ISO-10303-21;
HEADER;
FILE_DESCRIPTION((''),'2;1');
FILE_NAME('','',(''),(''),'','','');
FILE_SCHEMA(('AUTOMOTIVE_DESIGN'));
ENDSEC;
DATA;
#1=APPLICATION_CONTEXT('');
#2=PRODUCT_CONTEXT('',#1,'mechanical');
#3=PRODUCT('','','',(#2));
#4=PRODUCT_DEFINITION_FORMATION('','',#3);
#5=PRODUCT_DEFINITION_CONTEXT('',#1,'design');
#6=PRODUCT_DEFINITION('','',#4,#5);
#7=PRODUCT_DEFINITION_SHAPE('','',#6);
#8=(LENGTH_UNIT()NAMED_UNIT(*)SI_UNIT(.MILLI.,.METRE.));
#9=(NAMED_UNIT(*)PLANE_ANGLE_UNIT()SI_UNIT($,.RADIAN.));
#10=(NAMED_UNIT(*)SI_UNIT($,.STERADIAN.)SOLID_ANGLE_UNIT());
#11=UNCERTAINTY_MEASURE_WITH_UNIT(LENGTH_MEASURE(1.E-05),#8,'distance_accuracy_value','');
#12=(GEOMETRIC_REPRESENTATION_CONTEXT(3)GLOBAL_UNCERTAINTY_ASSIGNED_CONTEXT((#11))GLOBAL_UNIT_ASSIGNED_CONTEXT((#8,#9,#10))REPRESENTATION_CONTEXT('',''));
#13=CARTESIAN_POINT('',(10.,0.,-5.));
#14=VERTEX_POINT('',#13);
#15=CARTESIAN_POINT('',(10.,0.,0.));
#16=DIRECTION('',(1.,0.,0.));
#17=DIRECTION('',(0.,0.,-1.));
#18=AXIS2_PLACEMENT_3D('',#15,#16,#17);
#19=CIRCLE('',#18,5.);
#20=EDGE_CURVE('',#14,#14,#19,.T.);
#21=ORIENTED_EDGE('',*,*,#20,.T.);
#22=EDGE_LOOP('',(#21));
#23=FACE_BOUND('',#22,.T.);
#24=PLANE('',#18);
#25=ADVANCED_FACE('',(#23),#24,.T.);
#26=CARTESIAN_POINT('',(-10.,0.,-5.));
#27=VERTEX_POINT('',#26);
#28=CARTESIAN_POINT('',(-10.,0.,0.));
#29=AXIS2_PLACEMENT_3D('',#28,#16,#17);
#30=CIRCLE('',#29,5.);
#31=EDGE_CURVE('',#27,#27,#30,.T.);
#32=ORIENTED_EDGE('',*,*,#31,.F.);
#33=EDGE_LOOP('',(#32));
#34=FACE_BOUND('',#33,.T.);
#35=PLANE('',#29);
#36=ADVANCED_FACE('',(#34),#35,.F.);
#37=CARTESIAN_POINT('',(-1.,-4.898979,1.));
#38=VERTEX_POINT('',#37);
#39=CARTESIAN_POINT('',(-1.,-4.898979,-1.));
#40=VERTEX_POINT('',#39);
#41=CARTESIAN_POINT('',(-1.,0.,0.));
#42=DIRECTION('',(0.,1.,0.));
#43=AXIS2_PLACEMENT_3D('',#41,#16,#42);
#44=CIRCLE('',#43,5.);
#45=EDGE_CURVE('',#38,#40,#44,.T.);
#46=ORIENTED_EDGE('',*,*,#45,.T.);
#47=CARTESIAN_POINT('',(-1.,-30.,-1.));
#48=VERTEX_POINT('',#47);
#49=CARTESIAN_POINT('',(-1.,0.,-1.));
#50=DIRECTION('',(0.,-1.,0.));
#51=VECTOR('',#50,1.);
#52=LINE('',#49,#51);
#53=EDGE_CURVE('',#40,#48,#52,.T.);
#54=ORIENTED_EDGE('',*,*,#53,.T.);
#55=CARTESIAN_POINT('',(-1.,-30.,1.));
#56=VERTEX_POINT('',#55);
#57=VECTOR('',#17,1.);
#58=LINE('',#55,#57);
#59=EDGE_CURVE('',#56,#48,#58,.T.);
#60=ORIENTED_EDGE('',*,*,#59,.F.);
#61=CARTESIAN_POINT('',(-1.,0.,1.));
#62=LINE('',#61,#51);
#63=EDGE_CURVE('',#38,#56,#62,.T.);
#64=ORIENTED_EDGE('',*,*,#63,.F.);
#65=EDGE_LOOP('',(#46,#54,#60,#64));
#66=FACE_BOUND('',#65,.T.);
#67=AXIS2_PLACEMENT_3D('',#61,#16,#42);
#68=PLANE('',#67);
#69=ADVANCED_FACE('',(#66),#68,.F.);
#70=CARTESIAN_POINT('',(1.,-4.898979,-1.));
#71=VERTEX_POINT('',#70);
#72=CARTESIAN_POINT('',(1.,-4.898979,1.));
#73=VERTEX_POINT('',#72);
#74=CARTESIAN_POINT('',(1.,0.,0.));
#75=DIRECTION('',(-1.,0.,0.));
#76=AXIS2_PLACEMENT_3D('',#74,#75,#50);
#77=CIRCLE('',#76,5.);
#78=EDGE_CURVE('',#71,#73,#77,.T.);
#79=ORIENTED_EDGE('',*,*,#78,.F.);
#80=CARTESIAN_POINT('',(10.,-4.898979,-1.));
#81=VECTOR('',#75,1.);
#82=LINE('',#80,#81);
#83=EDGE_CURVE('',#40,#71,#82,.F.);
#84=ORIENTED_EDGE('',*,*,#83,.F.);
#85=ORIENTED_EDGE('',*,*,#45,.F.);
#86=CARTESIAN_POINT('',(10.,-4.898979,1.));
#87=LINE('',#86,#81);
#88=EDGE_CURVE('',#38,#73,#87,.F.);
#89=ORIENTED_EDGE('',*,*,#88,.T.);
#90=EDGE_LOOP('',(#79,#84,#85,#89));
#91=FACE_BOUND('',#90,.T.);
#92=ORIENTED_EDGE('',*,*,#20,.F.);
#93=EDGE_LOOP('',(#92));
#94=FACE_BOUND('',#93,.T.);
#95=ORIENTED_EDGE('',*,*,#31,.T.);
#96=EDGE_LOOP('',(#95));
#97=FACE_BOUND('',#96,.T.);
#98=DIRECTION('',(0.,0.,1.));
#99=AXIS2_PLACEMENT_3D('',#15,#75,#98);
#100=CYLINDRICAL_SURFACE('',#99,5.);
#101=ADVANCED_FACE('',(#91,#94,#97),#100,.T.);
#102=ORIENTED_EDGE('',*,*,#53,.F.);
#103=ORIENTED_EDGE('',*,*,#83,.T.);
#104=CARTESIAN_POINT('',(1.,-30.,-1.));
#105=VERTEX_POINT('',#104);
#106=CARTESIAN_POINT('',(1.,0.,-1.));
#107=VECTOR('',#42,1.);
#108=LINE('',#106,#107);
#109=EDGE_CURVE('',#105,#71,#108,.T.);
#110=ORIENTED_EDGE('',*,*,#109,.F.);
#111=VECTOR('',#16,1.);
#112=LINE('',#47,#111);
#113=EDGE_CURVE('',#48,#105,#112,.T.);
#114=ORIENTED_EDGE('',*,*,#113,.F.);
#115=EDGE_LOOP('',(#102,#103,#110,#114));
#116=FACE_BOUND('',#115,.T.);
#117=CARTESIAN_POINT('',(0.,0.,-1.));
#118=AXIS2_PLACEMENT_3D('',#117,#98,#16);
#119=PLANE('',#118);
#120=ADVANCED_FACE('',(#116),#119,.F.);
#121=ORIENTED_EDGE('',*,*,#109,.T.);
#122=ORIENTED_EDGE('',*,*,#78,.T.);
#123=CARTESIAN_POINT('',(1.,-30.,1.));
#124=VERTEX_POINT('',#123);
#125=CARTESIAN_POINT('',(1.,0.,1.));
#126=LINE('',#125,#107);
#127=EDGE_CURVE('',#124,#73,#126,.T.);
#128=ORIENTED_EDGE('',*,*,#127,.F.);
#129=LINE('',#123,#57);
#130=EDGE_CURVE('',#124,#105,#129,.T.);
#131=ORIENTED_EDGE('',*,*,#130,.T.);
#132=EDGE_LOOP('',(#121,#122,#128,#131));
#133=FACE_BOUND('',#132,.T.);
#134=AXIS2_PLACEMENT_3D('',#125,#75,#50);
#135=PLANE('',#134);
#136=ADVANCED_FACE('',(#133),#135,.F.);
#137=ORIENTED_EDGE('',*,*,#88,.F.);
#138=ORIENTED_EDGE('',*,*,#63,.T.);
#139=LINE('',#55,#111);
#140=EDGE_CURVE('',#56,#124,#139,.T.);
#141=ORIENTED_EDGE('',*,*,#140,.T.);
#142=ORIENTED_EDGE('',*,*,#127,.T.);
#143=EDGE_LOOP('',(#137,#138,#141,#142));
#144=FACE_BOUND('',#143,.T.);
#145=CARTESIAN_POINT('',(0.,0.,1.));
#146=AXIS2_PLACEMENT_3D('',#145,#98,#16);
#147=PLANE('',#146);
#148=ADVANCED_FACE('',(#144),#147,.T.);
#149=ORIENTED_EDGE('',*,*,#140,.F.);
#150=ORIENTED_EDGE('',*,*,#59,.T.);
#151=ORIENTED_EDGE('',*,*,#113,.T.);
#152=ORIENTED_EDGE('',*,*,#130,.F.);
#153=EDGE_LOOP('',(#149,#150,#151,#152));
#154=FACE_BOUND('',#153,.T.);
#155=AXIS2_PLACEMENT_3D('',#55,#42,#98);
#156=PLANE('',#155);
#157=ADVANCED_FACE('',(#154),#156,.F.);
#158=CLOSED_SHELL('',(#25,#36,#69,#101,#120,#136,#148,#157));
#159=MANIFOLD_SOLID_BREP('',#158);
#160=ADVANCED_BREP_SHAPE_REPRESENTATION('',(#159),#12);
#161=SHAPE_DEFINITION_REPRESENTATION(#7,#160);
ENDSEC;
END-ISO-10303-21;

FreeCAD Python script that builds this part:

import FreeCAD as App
import Part
import Sketcher
from FreeCAD import Vector
Q = App.Units.Quantity


def add_polygon(sketch, points):
    """Adds a closed chain of lines whose ends are joined by coincident constraints."""
    first, n = sketch.GeometryCount, len(points)
    for a, b in zip(points, points[1:] + points[:1]):
        sketch.addGeometry(Part.LineSegment(App.Vector(*a, 0), App.Vector(*b, 0)), False)
    for i in range(n):
        sketch.addConstraint(Sketcher.Constraint("Coincident", first + i, 2, first + (i + 1) % n, 1))

doc = App.newDocument("Part")
body = doc.addObject("PartDesign::Body", "Body")

# Sketch on YZ plane
sketch1 = body.newObject("Sketcher::SketchObject", "Sketch")
sketch1.AttachmentSupport = (doc.getObject("YZ_Plane"), [""])
sketch1.MapMode = "FlatFace"
sketch1.addGeometry(Part.Circle(Vector(0, 0, 0), Vector(0, 0, 1), 5), False)
sketch1.addConstraint([
    Sketcher.Constraint("Coincident", 0, 3, -1, 1),
    Sketcher.Constraint("Diameter", 0, Q("10 mm")),
])
pad1 = body.newObject("PartDesign::Pad", "Pad")
pad1.Profile = sketch1
pad1.Length = 20
pad1.Midplane = True

# Sketch on XY plane
sketch2 = body.newObject("Sketcher::SketchObject", "Sketch001")
sketch2.AttachmentSupport = (doc.getObject("XY_Plane"), [""])
sketch2.MapMode = "FlatFace"
add_polygon(sketch2, [(-1, 0), (-1, -30), (1, -30), (1, 0)])  # lines 0-3
sketch2.addConstraint([
    Sketcher.Constraint("Vertical", 0),
    Sketcher.Constraint("Horizontal", 1),
    Sketcher.Constraint("Vertical", 2),
    Sketcher.Constraint("Horizontal", 3),
    Sketcher.Constraint("Symmetric", 2, 2, 3, 2, -1, 1),
    Sketcher.Constraint("DistanceX", 1, 1, 1, 2, Q("2 mm")),
    Sketcher.Constraint("DistanceY", 0, 2, 0, 1, Q("30 mm")),
])
pad2 = body.newObject("PartDesign::Pad", "Pad001")
pad2.Profile = sketch2
pad2.Length = 2
pad2.Midplane = True

doc.recompute()
